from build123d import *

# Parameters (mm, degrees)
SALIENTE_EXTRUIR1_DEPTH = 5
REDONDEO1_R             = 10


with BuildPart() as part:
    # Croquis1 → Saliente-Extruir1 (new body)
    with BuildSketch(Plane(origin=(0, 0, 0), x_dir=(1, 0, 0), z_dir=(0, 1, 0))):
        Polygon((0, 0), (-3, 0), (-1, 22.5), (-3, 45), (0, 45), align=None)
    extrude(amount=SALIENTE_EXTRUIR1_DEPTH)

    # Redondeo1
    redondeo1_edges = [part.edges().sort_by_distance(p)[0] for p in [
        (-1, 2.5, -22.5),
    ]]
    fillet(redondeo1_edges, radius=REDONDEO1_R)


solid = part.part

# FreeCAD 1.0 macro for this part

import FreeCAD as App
import Part
import Sketcher
from FreeCAD import Vector
Q = App.Units.Quantity


def edges_at(feature, points):
    """Names of the edges that pass closest to the given points."""
    edges = feature.Shape.Edges
    near = lambda p: min(range(len(edges)), key=lambda i: edges[i].distToShape(Part.Vertex(*p))[0])
    return sorted({f"Edge{near(p) + 1}" for p in points})


def add_polygon(sketch, points):
    """Adds a closed chain of lines whose ends are joined by coincident constraints."""
    first, n = sketch.GeometryCount, len(points)
    for a, b in zip(points, points[1:] + points[:1]):
        sketch.addGeometry(Part.LineSegment(App.Vector(*a, 0), App.Vector(*b, 0)), False)
    for i in range(n):
        sketch.addConstraint(Sketcher.Constraint("Coincident", first + i, 2, first + (i + 1) % n, 1))

doc = App.newDocument("Part")
body = doc.addObject("PartDesign::Body", "Body")

sketch1 = body.newObject("Sketcher::SketchObject", "Sketch")
sketch1.AttachmentSupport = (doc.getObject("XZ_Plane"), [""])
sketch1.MapMode = "FlatFace"
add_polygon(sketch1, [(-3, 0), (0, 0), (0, -45), (-3, -45), (-1, -22.5)])
sketch1.addConstraint(Sketcher.Constraint("Horizontal", 0))
sketch1.addConstraint(Sketcher.Constraint("Vertical", 1))
sketch1.addConstraint(Sketcher.Constraint("Horizontal", 2))
sketch1.addConstraint(Sketcher.Constraint("Coincident", 0, 2, -1, 1))
sketch1.addConstraint(Sketcher.Constraint("Vertical", 2, 2, 4, 2))
sketch1.addConstraint(Sketcher.Constraint("Equal", 3, 4))
sketch1.addConstraint(Sketcher.Constraint("DistanceX", 0, 1, 0, 2, Q("3 mm")))
sketch1.addConstraint(Sketcher.Constraint("DistanceY", 1, 2, 1, 1, Q("45 mm")))
sketch1.addConstraint(Sketcher.Constraint("DistanceX", 3, 2, -1, 1, Q("1 mm")))
pad1 = body.newObject("PartDesign::Pad", "Pad")
pad1.Profile = sketch1
pad1.Length = 5
pad1.Reversed = True
doc.recompute()

fillet = body.newObject("PartDesign::Fillet", "Fillet")
fillet.Base = (pad1, edges_at(pad1, [(-1, 2.5, -22.5)]))
fillet.Radius = 10

doc.recompute()
